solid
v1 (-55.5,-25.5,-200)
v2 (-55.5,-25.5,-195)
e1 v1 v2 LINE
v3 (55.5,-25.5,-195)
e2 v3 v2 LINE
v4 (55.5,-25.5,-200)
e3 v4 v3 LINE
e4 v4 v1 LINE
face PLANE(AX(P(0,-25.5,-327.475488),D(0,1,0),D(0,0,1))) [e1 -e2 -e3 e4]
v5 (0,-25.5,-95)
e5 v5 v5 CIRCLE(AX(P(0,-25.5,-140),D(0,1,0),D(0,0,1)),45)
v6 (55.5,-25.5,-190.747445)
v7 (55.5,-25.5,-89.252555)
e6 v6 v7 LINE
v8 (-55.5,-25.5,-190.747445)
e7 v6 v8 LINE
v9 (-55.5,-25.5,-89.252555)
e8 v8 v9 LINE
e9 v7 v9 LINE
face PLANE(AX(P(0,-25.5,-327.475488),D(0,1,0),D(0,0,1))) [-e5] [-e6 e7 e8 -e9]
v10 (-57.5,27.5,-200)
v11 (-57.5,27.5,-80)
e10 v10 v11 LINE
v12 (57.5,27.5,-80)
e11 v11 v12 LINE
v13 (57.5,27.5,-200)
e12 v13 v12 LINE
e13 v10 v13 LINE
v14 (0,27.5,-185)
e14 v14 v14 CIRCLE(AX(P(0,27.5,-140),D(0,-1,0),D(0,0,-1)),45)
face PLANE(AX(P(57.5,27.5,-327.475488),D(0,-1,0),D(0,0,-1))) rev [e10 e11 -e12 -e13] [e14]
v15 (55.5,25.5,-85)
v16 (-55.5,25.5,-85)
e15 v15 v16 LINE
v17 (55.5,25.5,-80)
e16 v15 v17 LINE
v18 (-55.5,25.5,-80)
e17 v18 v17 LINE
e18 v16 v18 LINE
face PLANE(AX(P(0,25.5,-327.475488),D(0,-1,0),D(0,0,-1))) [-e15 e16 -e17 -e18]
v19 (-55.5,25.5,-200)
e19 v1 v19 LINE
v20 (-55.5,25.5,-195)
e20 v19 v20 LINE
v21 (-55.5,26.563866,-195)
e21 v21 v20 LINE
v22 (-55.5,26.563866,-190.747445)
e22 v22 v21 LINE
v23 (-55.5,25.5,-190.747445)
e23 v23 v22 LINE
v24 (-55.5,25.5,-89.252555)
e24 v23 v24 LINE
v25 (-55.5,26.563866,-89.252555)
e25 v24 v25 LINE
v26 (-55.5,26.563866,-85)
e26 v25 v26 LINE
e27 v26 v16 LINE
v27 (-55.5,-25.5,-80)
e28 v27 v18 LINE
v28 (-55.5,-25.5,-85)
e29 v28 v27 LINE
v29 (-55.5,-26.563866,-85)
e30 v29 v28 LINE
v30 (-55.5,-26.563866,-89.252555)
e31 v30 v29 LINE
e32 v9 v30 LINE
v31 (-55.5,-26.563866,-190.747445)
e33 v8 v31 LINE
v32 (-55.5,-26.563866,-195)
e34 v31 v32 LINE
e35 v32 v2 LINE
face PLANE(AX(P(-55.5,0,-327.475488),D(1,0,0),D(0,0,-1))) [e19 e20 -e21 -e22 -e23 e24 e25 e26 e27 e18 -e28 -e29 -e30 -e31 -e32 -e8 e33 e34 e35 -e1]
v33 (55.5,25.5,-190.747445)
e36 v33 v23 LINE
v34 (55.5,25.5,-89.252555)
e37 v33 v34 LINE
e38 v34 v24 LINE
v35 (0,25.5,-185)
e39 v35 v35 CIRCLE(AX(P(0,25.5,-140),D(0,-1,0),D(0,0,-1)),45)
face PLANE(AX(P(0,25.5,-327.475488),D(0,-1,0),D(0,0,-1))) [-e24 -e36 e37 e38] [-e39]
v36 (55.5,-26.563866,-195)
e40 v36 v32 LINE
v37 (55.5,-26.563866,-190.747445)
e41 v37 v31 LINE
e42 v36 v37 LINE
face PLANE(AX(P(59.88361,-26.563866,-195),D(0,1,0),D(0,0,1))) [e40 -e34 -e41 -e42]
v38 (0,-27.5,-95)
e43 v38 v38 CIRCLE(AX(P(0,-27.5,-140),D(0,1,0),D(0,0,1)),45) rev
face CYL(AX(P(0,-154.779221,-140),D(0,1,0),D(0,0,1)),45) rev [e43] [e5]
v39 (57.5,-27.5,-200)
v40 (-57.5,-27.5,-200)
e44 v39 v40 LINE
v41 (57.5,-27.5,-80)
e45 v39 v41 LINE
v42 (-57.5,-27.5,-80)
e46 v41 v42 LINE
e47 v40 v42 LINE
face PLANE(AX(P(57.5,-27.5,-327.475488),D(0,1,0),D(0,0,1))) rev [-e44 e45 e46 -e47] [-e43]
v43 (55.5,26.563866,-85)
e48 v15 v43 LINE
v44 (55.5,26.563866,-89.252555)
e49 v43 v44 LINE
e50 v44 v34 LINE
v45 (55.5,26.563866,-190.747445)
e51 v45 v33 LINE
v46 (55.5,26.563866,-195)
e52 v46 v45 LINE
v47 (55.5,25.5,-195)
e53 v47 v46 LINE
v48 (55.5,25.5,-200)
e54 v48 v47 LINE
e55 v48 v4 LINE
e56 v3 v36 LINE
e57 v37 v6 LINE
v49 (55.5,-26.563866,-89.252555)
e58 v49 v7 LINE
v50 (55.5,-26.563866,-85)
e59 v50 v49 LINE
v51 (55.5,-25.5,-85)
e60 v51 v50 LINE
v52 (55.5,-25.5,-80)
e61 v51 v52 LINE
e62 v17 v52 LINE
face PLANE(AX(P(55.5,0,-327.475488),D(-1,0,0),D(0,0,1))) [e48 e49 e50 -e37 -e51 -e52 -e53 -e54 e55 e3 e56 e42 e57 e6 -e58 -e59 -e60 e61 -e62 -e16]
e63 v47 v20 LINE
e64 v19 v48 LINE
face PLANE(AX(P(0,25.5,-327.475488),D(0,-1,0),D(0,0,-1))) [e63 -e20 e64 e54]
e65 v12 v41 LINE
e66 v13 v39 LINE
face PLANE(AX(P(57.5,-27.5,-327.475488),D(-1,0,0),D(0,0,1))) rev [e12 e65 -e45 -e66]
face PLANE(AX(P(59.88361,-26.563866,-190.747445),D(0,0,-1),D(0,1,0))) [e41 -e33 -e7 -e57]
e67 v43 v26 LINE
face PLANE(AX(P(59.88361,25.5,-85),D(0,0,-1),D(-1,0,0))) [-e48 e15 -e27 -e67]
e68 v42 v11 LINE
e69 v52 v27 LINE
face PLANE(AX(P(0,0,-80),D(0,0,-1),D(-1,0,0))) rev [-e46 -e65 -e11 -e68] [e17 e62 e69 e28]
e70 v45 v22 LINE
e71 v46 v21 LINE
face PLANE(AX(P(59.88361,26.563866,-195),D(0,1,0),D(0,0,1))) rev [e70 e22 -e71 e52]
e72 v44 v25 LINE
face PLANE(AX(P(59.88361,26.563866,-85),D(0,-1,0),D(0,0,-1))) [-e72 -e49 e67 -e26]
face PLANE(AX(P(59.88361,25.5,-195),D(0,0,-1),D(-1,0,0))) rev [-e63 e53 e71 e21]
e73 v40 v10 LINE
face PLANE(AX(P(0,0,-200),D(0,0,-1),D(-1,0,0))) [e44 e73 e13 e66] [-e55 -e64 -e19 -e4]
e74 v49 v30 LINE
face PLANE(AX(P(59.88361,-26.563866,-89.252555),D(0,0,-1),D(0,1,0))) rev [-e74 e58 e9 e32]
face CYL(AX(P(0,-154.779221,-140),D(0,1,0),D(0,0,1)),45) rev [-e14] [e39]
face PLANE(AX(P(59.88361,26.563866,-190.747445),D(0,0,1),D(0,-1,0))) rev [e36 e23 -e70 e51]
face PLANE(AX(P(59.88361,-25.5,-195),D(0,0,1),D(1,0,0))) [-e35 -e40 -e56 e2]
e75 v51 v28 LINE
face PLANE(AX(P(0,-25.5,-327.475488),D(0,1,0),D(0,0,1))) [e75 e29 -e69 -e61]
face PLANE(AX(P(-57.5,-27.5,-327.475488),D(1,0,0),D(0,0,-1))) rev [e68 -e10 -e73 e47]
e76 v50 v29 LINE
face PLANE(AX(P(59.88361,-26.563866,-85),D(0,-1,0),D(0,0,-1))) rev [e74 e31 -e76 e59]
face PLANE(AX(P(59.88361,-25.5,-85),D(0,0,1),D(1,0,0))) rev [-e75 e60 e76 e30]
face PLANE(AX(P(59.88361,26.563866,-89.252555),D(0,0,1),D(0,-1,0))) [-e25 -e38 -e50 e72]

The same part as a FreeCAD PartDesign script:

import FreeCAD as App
import Part
import Sketcher

V = App.Vector


def add_polygon(sketch, points):
    """Adds a closed chain of lines whose ends are joined by coincident constraints."""
    first, n = sketch.GeometryCount, len(points)
    for a, b in zip(points, points[1:] + points[:1]):
        sketch.addGeometry(Part.LineSegment(App.Vector(*a, 0), App.Vector(*b, 0)), False)
    for i in range(n):
        sketch.addConstraint(Sketcher.Constraint("Coincident", first + i, 2, first + (i + 1) % n, 1))

doc = App.newDocument("Part")
body = doc.addObject("PartDesign::Body", "Body")

# Sketch on XY plane
sketch1 = doc.addObject("Sketcher::SketchObject", "Sketch")
body.addObject(sketch1)
sketch1.AttachmentSupport = (doc.XY_Plane, [""])
sketch1.MapMode = "FlatFace"
sketch1.AttachmentOffset = App.Placement(V(0, 0, -80), App.Rotation())
add_polygon(sketch1, [(58, 28), (58, -28), (-58, -28), (-58, 28)])  # lines 0-3
add_polygon(sketch1, [(-56, -26), (56, -26), (56, 26), (-56, 26)])  # lines 4-7
sketch1.addConstraint([
    Sketcher.Constraint("Vertical", 0),
    Sketcher.Constraint("Horizontal", 1),
    Sketcher.Constraint("Vertical", 2),
    Sketcher.Constraint("Horizontal", 3),
    Sketcher.Constraint("Horizontal", 4),
    Sketcher.Constraint("Vertical", 5),
    Sketcher.Constraint("Horizontal", 6),
    Sketcher.Constraint("Vertical", 7),
    Sketcher.Constraint("Symmetric", 0, 2, 2, 2, -1, 1),
    Sketcher.Constraint("Symmetric", 4, 2, 6, 2, -1, 1),
    Sketcher.Constraint("DistanceX", 1, 2, 1, 1, 115.0),
    Sketcher.Constraint("DistanceX", 4, 1, 4, 2, 111.0),
    Sketcher.Constraint("DistanceY", 0, 2, 0, 1, 55.0),
    Sketcher.Constraint("DistanceY", 5, 1, 5, 2, 51.0),
])
pad1 = doc.addObject("PartDesign::Pad", "Pad")
body.addObject(pad1)
pad1.Profile = sketch1
pad1.Length = 120
pad1.Reversed = True

# Sketch on XZ plane
sketch2 = doc.addObject("Sketcher::SketchObject", "Sketch001")
body.addObject(sketch2)
sketch2.AttachmentSupport = (doc.XZ_Plane, [""])
sketch2.MapMode = "FlatFace"
sketch2.AttachmentOffset = App.Placement(V(0, 0, -27.5), App.Rotation())
sketch2.addGeometry(Part.Circle(V(0, -140, 0), V(0, 0, 1), 45), False)
sketch2.addConstraint([
    Sketcher.Constraint("PointOnObject", 0, 3, -2),
    Sketcher.Constraint("Diameter", 0, 90.0),
    Sketcher.Constraint("DistanceY", 0, 3, -1, 1, 140.0),
])
pocket1 = doc.addObject("PartDesign::Pocket", "Pocket")
body.addObject(pocket1)
pocket1.Profile = sketch2
pocket1.Type = "ThroughAll"
pocket1.Midplane = True

# Sketch on YZ plane
sketch3 = doc.addObject("Sketcher::SketchObject", "Sketch002")
body.addObject(sketch3)
sketch3.AttachmentSupport = (doc.YZ_Plane, [""])
sketch3.MapMode = "FlatFace"
sketch3.AttachmentOffset = App.Placement(V(0, 0, -55.5), App.Rotation())
add_polygon(sketch3, [(26.6, -85), (25.5, -85), (25.5, -89.3), (26.6, -89.3)])  # lines 0-3
sketch3.addConstraint([
    Sketcher.Constraint("Horizontal", 0),
    Sketcher.Constraint("Vertical", 1),
    Sketcher.Constraint("Horizontal", 2),
    Sketcher.Constraint("Vertical", 3),
    Sketcher.Constraint("DistanceY", 0, 2, -1, 1, 85.0),
    Sketcher.Constraint("DistanceX", -1, 1, 0, 2, 25.5),
    Sketcher.Constraint("DistanceX", 0, 2, 0, 1, 1.063866),
    Sketcher.Constraint("DistanceY", 1, 2, 1, 1, 4.252555),
])
pocket2 = doc.addObject("PartDesign::Pocket", "Pocket001")
body.addObject(pocket2)
pocket2.Profile = sketch3
pocket2.Length = 111
pocket2.Reversed = True
doc.recompute()

mirrored = doc.addObject("PartDesign::Mirrored", "Mirrored")
body.addObject(mirrored)
mirrored.Originals = [pocket2]
mirrored.MirrorPlane = (doc.XZ_Plane, [""])
body.Tip = mirrored
doc.recompute()

datumplane = doc.addObject("PartDesign::Plane", "DatumPlane")
body.addObject(datumplane)
datumplane.AttachmentSupport = (doc.XY_Plane, [""])
datumplane.MapMode = "FlatFace"
datumplane.AttachmentOffset = App.Placement(V(0, 0, -140), App.Rotation())
mirrored2 = doc.addObject("PartDesign::Mirrored", "Mirrored001")
body.addObject(mirrored2)
mirrored2.Originals = [pocket2]
mirrored2.MirrorPlane = (datumplane, [""])
body.Tip = mirrored2

# Sketch on YZ plane
sketch4 = doc.addObject("Sketcher::SketchObject", "Sketch003")
body.addObject(sketch4)
sketch4.AttachmentSupport = (doc.YZ_Plane, [""])
sketch4.MapMode = "FlatFace"
sketch4.AttachmentOffset = App.Placement(V(0, 0, -55.5), App.Rotation())
add_polygon(sketch4, [(-26.6, -195), (-25.5, -195), (-25.5, -190.7), (-26.6, -190.7)])  # lines 0-3
sketch4.addConstraint([
    Sketcher.Constraint("Horizontal", 0),
    Sketcher.Constraint("Vertical", 1),
    Sketcher.Constraint("Horizontal", 2),
    Sketcher.Constraint("Vertical", 3),
    Sketcher.Constraint("DistanceY", 0, 2, -1, 1, 195.0),
    Sketcher.Constraint("DistanceX", 0, 2, -1, 1, 25.5),
    Sketcher.Constraint("DistanceX", 0, 1, 0, 2, 1.063866),
    Sketcher.Constraint("DistanceY", 1, 1, 1, 2, 4.252555),
])
pocket3 = doc.addObject("PartDesign::Pocket", "Pocket002")
body.addObject(pocket3)
pocket3.Profile = sketch4
pocket3.Length = 111
pocket3.Reversed = True

doc.recompute()
